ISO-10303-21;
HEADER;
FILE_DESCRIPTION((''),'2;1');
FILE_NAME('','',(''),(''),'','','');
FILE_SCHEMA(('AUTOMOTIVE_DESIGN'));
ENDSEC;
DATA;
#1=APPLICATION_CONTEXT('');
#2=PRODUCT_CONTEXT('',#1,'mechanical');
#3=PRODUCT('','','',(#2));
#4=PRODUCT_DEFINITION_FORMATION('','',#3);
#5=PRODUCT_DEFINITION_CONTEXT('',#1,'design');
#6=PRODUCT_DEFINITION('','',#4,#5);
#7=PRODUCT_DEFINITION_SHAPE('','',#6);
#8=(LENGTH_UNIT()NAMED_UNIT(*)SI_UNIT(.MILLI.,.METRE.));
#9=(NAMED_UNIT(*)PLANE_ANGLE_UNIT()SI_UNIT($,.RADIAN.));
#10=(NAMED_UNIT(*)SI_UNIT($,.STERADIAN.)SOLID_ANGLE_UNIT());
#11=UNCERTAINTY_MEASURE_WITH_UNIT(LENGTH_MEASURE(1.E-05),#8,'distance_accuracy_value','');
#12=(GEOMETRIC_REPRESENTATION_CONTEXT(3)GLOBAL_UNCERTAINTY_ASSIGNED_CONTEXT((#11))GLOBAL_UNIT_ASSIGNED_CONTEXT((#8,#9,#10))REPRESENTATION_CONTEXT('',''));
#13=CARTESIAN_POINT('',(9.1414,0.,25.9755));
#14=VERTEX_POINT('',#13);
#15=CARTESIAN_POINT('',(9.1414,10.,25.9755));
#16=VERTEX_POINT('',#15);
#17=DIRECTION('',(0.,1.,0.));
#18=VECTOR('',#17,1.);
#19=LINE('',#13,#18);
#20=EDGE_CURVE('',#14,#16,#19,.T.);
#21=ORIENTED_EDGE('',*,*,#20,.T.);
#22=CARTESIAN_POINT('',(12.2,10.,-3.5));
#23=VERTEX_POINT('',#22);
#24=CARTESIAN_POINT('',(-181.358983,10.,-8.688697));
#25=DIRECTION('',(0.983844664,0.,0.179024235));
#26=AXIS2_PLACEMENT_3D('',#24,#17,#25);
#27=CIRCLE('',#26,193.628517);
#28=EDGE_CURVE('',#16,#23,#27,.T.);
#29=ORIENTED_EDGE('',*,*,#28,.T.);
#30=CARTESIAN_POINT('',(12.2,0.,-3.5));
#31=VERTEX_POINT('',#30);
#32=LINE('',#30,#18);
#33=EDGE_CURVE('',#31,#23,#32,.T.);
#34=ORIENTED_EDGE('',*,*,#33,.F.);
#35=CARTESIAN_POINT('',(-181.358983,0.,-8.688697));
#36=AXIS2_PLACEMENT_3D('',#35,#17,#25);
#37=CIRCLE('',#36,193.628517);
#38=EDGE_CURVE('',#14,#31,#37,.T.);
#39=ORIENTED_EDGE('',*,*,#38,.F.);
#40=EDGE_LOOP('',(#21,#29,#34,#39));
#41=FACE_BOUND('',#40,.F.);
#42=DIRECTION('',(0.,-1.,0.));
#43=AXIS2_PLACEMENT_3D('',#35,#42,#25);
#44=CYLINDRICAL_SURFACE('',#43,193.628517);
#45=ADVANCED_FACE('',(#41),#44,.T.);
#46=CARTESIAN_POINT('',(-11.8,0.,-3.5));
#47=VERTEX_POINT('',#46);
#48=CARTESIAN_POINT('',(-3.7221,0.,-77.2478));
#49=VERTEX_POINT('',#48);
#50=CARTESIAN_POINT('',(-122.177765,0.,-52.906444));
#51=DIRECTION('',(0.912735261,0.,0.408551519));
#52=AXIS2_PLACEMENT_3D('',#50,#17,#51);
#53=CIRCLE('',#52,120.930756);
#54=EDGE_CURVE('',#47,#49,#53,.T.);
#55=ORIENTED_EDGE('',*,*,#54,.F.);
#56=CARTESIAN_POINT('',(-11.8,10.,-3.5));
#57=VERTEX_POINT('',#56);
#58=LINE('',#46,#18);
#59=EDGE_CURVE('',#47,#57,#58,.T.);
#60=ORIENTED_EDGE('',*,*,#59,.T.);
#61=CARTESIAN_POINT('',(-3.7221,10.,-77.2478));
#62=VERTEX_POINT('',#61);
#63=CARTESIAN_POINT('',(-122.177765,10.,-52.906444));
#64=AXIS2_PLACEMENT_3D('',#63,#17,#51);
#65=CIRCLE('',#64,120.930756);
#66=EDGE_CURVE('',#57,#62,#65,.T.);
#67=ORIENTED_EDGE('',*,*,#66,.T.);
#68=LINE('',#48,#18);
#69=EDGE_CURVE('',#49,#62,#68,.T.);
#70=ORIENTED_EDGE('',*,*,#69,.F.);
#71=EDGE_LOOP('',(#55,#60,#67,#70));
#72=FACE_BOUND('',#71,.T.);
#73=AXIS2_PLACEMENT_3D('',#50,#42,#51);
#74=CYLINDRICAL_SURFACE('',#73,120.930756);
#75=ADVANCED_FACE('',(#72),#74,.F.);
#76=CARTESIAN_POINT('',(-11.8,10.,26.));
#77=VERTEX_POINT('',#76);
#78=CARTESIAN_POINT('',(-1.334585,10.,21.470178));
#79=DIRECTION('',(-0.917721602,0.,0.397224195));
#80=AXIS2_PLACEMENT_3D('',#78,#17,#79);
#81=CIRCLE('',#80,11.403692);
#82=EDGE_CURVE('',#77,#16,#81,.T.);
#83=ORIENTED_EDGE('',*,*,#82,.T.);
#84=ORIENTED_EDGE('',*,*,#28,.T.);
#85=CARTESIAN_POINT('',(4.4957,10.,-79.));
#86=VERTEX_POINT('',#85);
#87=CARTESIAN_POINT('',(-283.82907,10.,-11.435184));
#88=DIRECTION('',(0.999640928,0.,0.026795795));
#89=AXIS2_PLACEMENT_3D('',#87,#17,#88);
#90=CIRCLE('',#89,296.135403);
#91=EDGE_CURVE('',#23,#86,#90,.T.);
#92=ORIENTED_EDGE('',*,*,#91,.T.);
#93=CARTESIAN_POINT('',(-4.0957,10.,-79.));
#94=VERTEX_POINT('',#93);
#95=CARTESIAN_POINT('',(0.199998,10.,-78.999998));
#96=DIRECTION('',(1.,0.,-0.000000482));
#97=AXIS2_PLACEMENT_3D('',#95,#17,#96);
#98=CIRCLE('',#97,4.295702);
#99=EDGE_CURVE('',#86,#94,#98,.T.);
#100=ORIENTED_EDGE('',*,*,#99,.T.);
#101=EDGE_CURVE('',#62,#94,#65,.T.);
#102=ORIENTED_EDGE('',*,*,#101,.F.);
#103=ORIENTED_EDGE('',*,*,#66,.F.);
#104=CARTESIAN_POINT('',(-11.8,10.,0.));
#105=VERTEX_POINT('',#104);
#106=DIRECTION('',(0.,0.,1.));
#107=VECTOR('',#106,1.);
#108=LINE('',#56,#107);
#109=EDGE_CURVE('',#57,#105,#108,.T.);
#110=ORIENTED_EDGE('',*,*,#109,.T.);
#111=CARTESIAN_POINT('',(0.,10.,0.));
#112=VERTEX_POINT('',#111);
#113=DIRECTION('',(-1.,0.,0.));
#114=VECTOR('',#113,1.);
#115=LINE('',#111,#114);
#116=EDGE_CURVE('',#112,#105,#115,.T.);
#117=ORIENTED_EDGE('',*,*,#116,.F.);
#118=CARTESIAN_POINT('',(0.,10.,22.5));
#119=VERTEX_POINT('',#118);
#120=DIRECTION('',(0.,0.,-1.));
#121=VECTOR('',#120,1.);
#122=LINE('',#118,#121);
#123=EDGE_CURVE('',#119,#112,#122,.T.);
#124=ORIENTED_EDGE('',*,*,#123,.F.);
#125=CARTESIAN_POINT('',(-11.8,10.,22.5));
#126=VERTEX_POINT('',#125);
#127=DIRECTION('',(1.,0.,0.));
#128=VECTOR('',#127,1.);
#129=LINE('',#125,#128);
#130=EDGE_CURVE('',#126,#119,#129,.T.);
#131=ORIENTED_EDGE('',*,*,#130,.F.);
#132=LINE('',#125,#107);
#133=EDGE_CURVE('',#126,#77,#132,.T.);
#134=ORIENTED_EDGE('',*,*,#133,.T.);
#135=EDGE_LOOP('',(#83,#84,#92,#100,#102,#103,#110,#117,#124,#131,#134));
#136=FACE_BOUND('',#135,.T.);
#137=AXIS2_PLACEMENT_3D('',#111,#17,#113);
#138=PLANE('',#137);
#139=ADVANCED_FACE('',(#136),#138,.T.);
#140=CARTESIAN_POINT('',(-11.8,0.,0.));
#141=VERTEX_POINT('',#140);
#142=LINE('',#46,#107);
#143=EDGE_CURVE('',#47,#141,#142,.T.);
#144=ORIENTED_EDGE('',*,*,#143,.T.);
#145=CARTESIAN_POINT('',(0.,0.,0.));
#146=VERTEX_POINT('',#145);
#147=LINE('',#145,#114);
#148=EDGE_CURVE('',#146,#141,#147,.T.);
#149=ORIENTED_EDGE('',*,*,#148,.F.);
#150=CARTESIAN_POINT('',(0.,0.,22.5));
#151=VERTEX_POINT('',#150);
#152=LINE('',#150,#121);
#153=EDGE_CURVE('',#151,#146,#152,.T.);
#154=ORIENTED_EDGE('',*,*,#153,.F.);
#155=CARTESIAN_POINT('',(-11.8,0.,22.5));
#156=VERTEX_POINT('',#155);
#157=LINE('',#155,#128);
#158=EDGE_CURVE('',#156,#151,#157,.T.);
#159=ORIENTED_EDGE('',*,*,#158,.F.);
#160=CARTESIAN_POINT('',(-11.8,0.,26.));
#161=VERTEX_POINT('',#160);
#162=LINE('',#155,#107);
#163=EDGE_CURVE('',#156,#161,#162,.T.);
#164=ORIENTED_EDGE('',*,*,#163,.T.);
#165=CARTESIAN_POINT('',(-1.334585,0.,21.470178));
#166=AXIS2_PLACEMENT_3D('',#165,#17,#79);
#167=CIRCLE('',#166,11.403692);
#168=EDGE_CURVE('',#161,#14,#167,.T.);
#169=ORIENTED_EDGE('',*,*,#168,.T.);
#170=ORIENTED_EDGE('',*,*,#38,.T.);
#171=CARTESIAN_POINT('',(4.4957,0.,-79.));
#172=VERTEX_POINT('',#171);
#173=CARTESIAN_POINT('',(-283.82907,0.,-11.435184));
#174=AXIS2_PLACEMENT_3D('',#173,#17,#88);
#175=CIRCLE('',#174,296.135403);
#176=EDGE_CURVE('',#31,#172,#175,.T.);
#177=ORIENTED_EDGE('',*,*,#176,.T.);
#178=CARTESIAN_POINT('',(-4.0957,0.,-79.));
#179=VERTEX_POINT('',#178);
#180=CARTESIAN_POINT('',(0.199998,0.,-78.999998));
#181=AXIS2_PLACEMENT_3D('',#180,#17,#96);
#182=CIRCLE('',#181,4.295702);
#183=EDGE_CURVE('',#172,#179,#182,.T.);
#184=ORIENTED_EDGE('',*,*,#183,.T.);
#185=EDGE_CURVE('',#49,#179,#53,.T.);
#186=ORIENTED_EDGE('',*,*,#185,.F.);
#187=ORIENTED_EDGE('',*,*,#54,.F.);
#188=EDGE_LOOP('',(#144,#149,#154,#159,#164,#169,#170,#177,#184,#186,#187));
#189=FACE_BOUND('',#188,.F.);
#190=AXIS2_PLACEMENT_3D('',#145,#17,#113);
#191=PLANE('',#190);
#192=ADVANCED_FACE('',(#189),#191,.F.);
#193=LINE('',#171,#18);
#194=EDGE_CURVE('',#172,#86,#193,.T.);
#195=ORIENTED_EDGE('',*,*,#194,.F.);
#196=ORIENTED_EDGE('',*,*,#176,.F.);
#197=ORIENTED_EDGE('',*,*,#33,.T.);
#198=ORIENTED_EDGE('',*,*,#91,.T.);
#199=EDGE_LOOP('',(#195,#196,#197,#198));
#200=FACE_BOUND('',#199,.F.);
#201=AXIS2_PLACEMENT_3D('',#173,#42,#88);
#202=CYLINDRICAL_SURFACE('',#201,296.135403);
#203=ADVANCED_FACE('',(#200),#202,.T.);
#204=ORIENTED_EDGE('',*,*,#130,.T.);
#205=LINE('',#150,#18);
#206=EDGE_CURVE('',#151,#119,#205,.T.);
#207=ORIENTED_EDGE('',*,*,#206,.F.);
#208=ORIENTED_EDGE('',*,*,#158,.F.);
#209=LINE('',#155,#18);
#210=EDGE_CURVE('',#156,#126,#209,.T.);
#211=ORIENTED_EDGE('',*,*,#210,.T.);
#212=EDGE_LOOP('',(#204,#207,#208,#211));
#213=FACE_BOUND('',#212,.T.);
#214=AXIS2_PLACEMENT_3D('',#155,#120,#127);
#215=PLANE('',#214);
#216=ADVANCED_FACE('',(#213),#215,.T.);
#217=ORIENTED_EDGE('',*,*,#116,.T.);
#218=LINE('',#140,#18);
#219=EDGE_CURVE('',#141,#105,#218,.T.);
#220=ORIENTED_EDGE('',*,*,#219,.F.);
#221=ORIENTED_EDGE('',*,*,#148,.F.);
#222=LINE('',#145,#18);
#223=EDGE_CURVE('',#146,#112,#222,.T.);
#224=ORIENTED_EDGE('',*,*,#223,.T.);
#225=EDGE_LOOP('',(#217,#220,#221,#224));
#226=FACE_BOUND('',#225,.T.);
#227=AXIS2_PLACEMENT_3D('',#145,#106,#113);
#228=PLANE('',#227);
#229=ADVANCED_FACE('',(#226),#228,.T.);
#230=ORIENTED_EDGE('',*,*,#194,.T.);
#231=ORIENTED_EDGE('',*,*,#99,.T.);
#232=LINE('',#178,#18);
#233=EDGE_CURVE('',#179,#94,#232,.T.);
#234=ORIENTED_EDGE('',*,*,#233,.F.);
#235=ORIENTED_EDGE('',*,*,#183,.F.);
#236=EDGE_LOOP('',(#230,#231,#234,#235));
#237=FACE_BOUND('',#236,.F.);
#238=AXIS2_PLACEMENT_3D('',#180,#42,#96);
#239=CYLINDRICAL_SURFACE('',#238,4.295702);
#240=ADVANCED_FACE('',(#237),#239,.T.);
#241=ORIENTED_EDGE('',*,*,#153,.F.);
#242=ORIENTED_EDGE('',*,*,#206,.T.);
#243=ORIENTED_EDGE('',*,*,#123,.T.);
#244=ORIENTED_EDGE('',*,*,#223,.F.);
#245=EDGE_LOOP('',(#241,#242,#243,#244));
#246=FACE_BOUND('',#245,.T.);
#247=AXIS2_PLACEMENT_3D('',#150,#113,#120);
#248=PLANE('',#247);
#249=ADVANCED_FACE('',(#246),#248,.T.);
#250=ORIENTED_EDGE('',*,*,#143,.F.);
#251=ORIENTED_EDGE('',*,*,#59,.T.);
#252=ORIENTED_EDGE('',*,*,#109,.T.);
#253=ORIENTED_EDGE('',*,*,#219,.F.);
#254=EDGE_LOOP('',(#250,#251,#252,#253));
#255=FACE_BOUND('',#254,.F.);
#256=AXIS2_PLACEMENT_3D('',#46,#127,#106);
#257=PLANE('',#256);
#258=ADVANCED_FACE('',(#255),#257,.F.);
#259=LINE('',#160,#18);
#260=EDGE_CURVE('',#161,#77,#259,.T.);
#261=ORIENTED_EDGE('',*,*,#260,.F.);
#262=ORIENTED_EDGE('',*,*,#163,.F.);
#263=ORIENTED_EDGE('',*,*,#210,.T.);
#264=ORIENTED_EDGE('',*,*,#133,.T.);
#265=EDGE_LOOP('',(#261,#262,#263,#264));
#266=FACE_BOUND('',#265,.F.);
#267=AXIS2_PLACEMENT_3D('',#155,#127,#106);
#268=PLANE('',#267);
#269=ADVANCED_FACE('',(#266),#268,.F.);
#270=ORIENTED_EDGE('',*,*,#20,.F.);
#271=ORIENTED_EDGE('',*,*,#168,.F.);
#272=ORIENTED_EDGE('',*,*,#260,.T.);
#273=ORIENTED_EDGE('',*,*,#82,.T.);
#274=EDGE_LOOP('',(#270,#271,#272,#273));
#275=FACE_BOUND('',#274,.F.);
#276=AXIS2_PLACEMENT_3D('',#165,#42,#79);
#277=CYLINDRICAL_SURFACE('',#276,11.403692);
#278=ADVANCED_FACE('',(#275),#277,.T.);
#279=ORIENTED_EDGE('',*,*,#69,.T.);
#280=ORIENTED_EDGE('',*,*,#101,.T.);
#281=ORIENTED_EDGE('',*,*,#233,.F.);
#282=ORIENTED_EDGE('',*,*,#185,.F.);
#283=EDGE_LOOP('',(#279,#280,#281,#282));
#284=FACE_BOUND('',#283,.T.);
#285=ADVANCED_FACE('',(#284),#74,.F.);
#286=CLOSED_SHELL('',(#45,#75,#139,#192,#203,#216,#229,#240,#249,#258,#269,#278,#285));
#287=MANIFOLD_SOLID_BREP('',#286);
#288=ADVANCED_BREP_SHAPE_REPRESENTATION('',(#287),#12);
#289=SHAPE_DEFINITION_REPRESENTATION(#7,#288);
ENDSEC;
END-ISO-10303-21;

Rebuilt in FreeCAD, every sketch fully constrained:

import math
import FreeCAD as App
import Part
import Sketcher
from FreeCAD import Vector
Q = App.Units.Quantity

doc = App.newDocument("Part")
params = doc.addObject("Spreadsheet::Sheet", "Params")
for row, (alias, value) in enumerate([
    ("sketch1_width", "11.8 mm"),
    ("sketch1_height", "22.5 mm"),
    ("sketch1_height2", "3.5 mm"),
    ("pad1_length", "10 mm"),
], start=1):
    params.set(f"A{row}", alias)
    params.set(f"B{row}", "=" + value)
    params.setAlias(f"B{row}", alias)

body = doc.addObject("PartDesign::Body", "Body")

# Sketch on XZ plane
sketch1 = body.newObject("Sketcher::SketchObject", "Sketch")
sketch1.AttachmentSupport = (doc.getObject("XZ_Plane"), [""])
sketch1.MapMode = "FlatFace"
sketch1.addGeometry(Part.LineSegment(Vector(-11.8, 0, 0), Vector(0, 0, 0)), False)
sketch1.addGeometry(Part.LineSegment(Vector(0, 0, 0), Vector(0, 22.5, 0)), False)
sketch1.addGeometry(Part.LineSegment(Vector(0, 22.5, 0), Vector(-11.8, 22.5, 0)), False)
sketch1.addGeometry(Part.LineSegment(Vector(-11.8, 22.5, 0), Vector(-11.8, 26, 0)), False)
sketch1.addGeometry(Part.ArcOfCircle(Part.Circle(Vector(-1.3, 21.5, 0), Vector(0, 0, 1), 11.4), math.radians(23), math.radians(157)), False)
sketch1.addGeometry(Part.ArcOfCircle(Part.Circle(Vector(-181.4, -8.7, 0), Vector(0, 0, 1), 193.6), math.radians(1.54), math.radians(10.31)), False)
sketch1.addGeometry(Part.ArcOfCircle(Part.Circle(Vector(-283.8, -11.4, 0), Vector(0, 0, 1), 296.1), math.radians(-13.19), math.radians(1.54)), False)
sketch1.addGeometry(Part.ArcOfCircle(Part.Circle(Vector(0.2, -79, 0), Vector(0, 0, 1), 4.3), math.radians(180), math.radians(360)), False)
sketch1.addGeometry(Part.ArcOfCircle(Part.Circle(Vector(-122.2, -52.9, 0), Vector(0, 0, 1), 120.9), math.radians(-12), math.radians(24)), False)
sketch1.addGeometry(Part.LineSegment(Vector(-11.8, -3.5, 0), Vector(-11.8, 0, 0)), False)
sketch1.addConstraint(Sketcher.Constraint("Coincident", 0, 2, 1, 1))
sketch1.addConstraint(Sketcher.Constraint("Coincident", 1, 2, 2, 1))
sketch1.addConstraint(Sketcher.Constraint("Coincident", 2, 2, 3, 1))
sketch1.addConstraint(Sketcher.Constraint("Coincident", 3, 2, 4, 2))
sketch1.addConstraint(Sketcher.Constraint("Coincident", 4, 1, 5, 2))
sketch1.addConstraint(Sketcher.Constraint("Tangent", 5, 1, 6, 2))
sketch1.addConstraint(Sketcher.Constraint("Coincident", 6, 1, 7, 2))
sketch1.addConstraint(Sketcher.Constraint("Coincident", 7, 1, 8, 1))
sketch1.addConstraint(Sketcher.Constraint("Coincident", 8, 2, 9, 1))
sketch1.addConstraint(Sketcher.Constraint("Coincident", 9, 2, 0, 1))
sketch1.addConstraint(Sketcher.Constraint("Horizontal", 0))
sketch1.addConstraint(Sketcher.Constraint("Vertical", 1))
sketch1.addConstraint(Sketcher.Constraint("Horizontal", 2))
sketch1.addConstraint(Sketcher.Constraint("Vertical", 3))
sketch1.addConstraint(Sketcher.Constraint("Vertical", 9))
sketch1.addConstraint(Sketcher.Constraint("Coincident", 0, 2, -1, 1))
sketch1.addConstraint(Sketcher.Constraint("Horizontal", 7, 3, 6, 1))
sketch1.addConstraint(Sketcher.Constraint("Horizontal", 6, 1, 7, 1))
sketch1.addConstraint(Sketcher.Constraint("Horizontal", 5, 1, 8, 2))
sketch1.addConstraint(Sketcher.Constraint("Vertical", 3, 2, 8, 2))
sketch1.addConstraint(Sketcher.Constraint("Equal", 3, 9))
sketch1.addConstraint(Sketcher.Constraint("DistanceX", 0, 1, 0, 2, Q("11.8 mm")))
sketch1.addConstraint(Sketcher.Constraint("DistanceY", 1, 1, 1, 2, Q("22.5 mm")))
sketch1.addConstraint(Sketcher.Constraint("DistanceY", 3, 1, 3, 2, Q("3.5 mm")))
sketch1.addConstraint(Sketcher.Constraint("DistanceY", 7, 3, -1, 1, Q("79 mm")))
sketch1.addConstraint(Sketcher.Constraint("DistanceX", 2, 2, 7, 3, Q("12 mm")))
sketch1.addConstraint(Sketcher.Constraint("DistanceX", 2, 2, 5, 1, Q("24 mm")))
sketch1.addConstraint(Sketcher.Constraint("Radius", 4, Q("11.4037 mm")))
sketch1.addConstraint(Sketcher.Constraint("Radius", 5, Q("193.6285 mm")))
sketch1.addConstraint(Sketcher.Constraint("Radius", 6, Q("296.1354 mm")))
sketch1.addConstraint(Sketcher.Constraint("Radius", 7, Q("4.2957 mm")))
sketch1.addConstraint(Sketcher.Constraint("Radius", 8, Q("120.9306 mm")))
sketch1.addConstraint(Sketcher.Constraint("DistanceY", 5, 3, 4, 3, Q("30.159 mm")))
sketch1.setExpression("Constraints[21]", "Params.sketch1_width")
sketch1.setExpression("Constraints[22]", "Params.sketch1_height")
sketch1.setExpression("Constraints[23]", "Params.sketch1_height2")
pad1 = body.newObject("PartDesign::Pad", "Pad")
pad1.Profile = sketch1
pad1.setExpression("Length", "Params.pad1_length")
pad1.Reversed = True

doc.recompute()
